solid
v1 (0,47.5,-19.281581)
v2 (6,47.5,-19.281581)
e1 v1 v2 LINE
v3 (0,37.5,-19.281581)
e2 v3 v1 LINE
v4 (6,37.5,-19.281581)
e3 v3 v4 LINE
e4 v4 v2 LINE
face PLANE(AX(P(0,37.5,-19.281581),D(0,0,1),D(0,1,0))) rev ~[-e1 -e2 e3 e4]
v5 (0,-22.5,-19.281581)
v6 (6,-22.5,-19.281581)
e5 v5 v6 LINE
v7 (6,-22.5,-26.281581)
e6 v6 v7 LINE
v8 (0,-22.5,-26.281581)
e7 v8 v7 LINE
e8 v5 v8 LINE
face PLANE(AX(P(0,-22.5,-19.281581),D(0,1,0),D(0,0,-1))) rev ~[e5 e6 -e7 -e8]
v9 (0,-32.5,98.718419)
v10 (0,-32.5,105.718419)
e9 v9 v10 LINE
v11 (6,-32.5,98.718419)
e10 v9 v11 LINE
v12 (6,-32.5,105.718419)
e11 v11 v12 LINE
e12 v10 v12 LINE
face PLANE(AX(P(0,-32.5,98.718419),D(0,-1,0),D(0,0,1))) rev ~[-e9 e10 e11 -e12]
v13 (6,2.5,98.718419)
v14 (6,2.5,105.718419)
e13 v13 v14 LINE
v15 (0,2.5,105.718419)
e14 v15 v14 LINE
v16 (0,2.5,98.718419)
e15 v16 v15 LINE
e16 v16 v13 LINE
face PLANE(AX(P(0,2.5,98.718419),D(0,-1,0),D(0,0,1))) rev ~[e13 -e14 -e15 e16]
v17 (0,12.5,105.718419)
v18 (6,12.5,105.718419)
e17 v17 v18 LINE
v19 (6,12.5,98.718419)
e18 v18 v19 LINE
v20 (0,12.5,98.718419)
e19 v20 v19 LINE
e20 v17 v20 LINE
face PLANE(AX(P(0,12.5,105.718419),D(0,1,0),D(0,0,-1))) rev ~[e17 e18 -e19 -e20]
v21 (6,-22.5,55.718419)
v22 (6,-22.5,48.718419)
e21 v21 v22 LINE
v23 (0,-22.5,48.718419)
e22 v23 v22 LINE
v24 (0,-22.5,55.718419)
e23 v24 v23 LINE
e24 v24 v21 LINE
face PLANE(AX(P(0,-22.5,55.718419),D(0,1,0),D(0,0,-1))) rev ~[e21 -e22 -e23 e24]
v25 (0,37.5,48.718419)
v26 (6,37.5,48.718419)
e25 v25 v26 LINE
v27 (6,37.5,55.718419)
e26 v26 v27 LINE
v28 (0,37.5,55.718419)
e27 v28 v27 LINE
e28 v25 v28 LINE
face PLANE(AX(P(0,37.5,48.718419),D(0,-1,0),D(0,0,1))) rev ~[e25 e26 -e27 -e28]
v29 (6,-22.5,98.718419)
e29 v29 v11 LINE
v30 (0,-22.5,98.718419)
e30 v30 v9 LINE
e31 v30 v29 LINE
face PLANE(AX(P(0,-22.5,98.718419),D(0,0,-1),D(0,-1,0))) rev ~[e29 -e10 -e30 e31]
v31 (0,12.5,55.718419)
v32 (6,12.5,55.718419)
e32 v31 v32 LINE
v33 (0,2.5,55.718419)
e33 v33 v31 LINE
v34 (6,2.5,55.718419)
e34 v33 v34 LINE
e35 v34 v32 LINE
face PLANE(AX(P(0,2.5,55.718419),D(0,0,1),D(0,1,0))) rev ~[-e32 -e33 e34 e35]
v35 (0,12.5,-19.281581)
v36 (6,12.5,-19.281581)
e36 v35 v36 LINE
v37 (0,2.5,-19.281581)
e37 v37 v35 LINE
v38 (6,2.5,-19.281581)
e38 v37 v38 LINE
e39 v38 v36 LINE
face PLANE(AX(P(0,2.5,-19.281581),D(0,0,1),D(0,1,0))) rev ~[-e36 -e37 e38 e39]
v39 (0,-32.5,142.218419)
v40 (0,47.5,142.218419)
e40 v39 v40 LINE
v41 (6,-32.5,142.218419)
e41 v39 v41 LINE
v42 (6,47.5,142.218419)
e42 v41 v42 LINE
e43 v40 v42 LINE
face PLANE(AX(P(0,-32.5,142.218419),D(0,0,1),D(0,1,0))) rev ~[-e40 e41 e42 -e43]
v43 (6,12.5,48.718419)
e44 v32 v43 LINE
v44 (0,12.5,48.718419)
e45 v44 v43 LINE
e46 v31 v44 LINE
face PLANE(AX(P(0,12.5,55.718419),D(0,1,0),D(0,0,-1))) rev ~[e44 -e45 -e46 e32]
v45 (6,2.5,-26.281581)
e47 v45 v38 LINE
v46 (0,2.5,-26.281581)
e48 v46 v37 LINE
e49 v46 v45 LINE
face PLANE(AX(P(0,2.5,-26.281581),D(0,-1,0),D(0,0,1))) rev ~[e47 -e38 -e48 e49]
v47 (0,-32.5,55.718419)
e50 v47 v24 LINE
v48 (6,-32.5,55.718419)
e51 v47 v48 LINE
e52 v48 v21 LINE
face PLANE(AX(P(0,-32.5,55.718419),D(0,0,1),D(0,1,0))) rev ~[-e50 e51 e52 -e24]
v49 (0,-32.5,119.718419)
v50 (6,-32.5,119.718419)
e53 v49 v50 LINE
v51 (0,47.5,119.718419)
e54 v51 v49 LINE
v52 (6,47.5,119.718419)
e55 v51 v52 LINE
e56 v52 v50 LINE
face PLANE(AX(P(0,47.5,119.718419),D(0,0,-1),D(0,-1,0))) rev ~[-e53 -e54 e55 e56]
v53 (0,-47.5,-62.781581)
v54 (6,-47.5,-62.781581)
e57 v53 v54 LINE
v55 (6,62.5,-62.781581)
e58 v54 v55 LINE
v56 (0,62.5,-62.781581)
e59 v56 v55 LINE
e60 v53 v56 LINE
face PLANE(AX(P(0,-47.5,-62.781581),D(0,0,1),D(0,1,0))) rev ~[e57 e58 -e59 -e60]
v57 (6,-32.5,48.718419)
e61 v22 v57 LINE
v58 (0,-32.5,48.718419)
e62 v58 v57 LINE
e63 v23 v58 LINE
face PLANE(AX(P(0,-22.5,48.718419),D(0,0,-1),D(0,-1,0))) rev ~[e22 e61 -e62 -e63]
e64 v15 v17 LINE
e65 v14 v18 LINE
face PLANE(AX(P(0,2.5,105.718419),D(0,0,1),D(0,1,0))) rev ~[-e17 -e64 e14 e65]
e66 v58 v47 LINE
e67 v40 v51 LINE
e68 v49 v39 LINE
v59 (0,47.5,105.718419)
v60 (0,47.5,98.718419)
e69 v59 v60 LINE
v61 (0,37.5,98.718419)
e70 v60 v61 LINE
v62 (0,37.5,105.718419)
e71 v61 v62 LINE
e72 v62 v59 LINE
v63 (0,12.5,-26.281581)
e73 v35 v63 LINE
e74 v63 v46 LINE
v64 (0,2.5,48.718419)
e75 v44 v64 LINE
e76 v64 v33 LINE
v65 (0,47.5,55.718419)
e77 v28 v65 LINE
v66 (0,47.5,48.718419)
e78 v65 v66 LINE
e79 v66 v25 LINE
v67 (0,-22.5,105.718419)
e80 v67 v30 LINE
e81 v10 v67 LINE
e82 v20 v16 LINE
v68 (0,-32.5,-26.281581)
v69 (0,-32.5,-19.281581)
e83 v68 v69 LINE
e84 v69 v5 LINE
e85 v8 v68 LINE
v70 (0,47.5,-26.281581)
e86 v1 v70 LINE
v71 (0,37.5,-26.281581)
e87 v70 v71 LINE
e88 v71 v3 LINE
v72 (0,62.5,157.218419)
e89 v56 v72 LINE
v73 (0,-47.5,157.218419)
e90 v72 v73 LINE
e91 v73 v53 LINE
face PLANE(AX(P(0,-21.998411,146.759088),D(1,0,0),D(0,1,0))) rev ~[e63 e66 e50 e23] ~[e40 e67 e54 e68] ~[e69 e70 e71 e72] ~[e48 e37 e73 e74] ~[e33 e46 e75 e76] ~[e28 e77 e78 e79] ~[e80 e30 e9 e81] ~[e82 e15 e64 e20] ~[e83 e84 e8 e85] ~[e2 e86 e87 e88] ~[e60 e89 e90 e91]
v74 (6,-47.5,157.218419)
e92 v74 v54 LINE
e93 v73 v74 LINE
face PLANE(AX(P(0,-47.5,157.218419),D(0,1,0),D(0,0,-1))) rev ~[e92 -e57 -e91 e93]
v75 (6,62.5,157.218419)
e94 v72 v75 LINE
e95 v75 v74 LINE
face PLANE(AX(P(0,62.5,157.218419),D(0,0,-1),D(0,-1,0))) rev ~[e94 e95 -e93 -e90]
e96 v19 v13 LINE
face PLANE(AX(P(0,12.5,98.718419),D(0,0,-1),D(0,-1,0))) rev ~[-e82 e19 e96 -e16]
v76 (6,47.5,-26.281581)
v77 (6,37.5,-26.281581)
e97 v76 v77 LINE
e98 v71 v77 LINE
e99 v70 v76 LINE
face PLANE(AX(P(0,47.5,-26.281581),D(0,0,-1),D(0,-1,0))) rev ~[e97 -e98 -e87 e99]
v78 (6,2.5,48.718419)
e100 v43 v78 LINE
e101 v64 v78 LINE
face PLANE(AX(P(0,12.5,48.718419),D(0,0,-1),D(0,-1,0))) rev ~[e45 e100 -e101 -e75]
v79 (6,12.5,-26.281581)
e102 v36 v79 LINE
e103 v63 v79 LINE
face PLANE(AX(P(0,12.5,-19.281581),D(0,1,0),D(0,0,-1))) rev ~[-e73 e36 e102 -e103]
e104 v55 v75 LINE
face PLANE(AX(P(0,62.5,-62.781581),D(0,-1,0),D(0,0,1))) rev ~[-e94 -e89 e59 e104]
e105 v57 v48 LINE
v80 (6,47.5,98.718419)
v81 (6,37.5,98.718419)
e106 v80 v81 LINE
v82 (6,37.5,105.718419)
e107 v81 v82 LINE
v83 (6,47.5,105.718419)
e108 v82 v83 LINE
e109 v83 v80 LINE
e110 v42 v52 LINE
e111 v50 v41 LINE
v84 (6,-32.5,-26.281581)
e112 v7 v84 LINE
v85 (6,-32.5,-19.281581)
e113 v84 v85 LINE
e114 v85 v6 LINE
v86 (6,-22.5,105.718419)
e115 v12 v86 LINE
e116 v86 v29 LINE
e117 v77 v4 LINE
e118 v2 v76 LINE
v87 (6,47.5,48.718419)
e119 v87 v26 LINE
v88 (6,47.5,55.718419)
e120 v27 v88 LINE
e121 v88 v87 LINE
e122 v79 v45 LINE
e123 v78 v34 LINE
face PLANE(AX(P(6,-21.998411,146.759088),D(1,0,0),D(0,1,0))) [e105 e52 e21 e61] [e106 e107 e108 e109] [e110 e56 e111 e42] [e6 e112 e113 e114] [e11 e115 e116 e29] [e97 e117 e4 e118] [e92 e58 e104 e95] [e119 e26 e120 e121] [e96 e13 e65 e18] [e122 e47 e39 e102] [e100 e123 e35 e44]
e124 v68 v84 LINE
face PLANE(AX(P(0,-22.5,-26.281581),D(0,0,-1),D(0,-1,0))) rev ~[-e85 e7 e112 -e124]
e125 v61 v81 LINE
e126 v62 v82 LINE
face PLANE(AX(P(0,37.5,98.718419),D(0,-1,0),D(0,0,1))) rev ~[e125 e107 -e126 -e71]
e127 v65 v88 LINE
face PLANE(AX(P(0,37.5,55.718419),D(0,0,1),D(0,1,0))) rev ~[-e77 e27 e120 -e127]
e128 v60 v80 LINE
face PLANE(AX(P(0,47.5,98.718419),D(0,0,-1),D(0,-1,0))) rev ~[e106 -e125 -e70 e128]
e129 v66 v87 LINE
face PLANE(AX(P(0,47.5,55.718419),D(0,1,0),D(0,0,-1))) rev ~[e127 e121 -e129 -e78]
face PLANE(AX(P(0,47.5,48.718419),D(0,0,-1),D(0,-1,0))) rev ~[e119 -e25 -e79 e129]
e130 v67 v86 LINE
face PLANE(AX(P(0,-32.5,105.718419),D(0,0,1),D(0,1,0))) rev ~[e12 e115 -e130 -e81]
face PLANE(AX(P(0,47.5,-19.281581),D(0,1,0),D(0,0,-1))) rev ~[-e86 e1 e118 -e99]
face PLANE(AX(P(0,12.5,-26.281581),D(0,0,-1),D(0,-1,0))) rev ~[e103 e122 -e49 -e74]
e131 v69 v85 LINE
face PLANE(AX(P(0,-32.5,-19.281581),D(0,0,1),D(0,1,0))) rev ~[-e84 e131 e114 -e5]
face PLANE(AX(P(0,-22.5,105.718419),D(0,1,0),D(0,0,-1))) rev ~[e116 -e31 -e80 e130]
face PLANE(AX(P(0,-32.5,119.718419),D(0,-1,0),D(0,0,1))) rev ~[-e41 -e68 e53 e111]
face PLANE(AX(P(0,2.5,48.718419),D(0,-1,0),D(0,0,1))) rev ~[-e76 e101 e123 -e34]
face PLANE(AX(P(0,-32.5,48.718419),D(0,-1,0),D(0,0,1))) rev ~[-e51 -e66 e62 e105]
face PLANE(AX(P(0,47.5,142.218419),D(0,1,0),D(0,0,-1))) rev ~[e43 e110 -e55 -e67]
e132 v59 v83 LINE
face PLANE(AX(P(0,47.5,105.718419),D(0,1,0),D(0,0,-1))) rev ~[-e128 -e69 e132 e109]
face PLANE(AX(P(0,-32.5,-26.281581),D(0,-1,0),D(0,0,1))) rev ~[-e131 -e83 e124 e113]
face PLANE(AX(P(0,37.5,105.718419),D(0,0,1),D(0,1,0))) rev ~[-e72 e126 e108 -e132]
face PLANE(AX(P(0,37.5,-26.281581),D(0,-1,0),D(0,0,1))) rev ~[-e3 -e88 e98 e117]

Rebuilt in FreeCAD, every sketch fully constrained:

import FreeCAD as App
import Part
import Sketcher
Q = App.Units.Quantity

doc = App.newDocument("Part")
body = doc.addObject("PartDesign::Body", "Body")

sketch1 = body.newObject("Sketcher::SketchObject", "Sketch")
sketch1.AttachmentSupport = (doc.getObject("YZ_Plane"), [""])
sketch1.MapMode = "FlatFace"
sketch1.addGeometry(Part.LineSegment(App.Vector(-48, 157, 0), App.Vector(-48, -63, 0)), False)
sketch1.addGeometry(Part.LineSegment(App.Vector(-48, -63, 0), App.Vector(62, -63, 0)), False)
sketch1.addGeometry(Part.LineSegment(App.Vector(62, -63, 0), App.Vector(62, 157, 0)), False)
sketch1.addGeometry(Part.LineSegment(App.Vector(62, 157, 0), App.Vector(-48, 157, 0)), False)
sketch1.addGeometry(Part.LineSegment(App.Vector(-32, -19, 0), App.Vector(-22, -19, 0)), False)
sketch1.addGeometry(Part.LineSegment(App.Vector(-22, -19, 0), App.Vector(-22, -26, 0)), False)
sketch1.addGeometry(Part.LineSegment(App.Vector(-22, -26, 0), App.Vector(-32, -26, 0)), False)
sketch1.addGeometry(Part.LineSegment(App.Vector(-32, -26, 0), App.Vector(-32, -19, 0)), False)
sketch1.addGeometry(Part.LineSegment(App.Vector(-32, 56, 0), App.Vector(-22, 56, 0)), False)
sketch1.addGeometry(Part.LineSegment(App.Vector(-22, 56, 0), App.Vector(-22, 49, 0)), False)
sketch1.addGeometry(Part.LineSegment(App.Vector(-22, 49, 0), App.Vector(-32, 49, 0)), False)
sketch1.addGeometry(Part.LineSegment(App.Vector(-32, 49, 0), App.Vector(-32, 56, 0)), False)
sketch1.addGeometry(Part.LineSegment(App.Vector(2, -19, 0), App.Vector(12, -19, 0)), False)
sketch1.addGeometry(Part.LineSegment(App.Vector(12, -19, 0), App.Vector(12, -26, 0)), False)
sketch1.addGeometry(Part.LineSegment(App.Vector(12, -26, 0), App.Vector(2, -26, 0)), False)
sketch1.addGeometry(Part.LineSegment(App.Vector(2, -26, 0), App.Vector(2, -19, 0)), False)
sketch1.addGeometry(Part.LineSegment(App.Vector(38, -26, 0), App.Vector(38, -19, 0)), False)
sketch1.addGeometry(Part.LineSegment(App.Vector(38, -19, 0), App.Vector(48, -19, 0)), False)
sketch1.addGeometry(Part.LineSegment(App.Vector(48, -19, 0), App.Vector(48, -26, 0)), False)
sketch1.addGeometry(Part.LineSegment(App.Vector(48, -26, 0), App.Vector(38, -26, 0)), False)
sketch1.addGeometry(Part.LineSegment(App.Vector(2, 56, 0), App.Vector(12, 56, 0)), False)
sketch1.addGeometry(Part.LineSegment(App.Vector(12, 56, 0), App.Vector(12, 49, 0)), False)
sketch1.addGeometry(Part.LineSegment(App.Vector(12, 49, 0), App.Vector(2, 49, 0)), False)
sketch1.addGeometry(Part.LineSegment(App.Vector(2, 49, 0), App.Vector(2, 56, 0)), False)
sketch1.addGeometry(Part.LineSegment(App.Vector(38, 49, 0), App.Vector(38, 56, 0)), False)
sketch1.addGeometry(Part.LineSegment(App.Vector(38, 56, 0), App.Vector(48, 56, 0)), False)
sketch1.addGeometry(Part.LineSegment(App.Vector(48, 56, 0), App.Vector(48, 49, 0)), False)
sketch1.addGeometry(Part.LineSegment(App.Vector(48, 49, 0), App.Vector(38, 49, 0)), False)
sketch1.addGeometry(Part.LineSegment(App.Vector(-22, 106, 0), App.Vector(-22, 99, 0)), False)
sketch1.addGeometry(Part.LineSegment(App.Vector(-22, 99, 0), App.Vector(-32, 99, 0)), False)
sketch1.addGeometry(Part.LineSegment(App.Vector(-32, 99, 0), App.Vector(-32, 106, 0)), False)
sketch1.addGeometry(Part.LineSegment(App.Vector(-32, 106, 0), App.Vector(-22, 106, 0)), False)
sketch1.addGeometry(Part.LineSegment(App.Vector(12, 99, 0), App.Vector(2, 99, 0)), False)
sketch1.addGeometry(Part.LineSegment(App.Vector(2, 99, 0), App.Vector(2, 106, 0)), False)
sketch1.addGeometry(Part.LineSegment(App.Vector(2, 106, 0), App.Vector(12, 106, 0)), False)
sketch1.addGeometry(Part.LineSegment(App.Vector(12, 106, 0), App.Vector(12, 99, 0)), False)
sketch1.addGeometry(Part.LineSegment(App.Vector(-32, 142, 0), App.Vector(48, 142, 0)), False)
sketch1.addGeometry(Part.LineSegment(App.Vector(48, 142, 0), App.Vector(48, 120, 0)), False)
sketch1.addGeometry(Part.LineSegment(App.Vector(48, 120, 0), App.Vector(-32, 120, 0)), False)
sketch1.addGeometry(Part.LineSegment(App.Vector(-32, 120, 0), App.Vector(-32, 142, 0)), False)
sketch1.addGeometry(Part.LineSegment(App.Vector(48, 99, 0), App.Vector(38, 99, 0)), False)
sketch1.addGeometry(Part.LineSegment(App.Vector(38, 99, 0), App.Vector(38, 106, 0)), False)
sketch1.addGeometry(Part.LineSegment(App.Vector(38, 106, 0), App.Vector(48, 106, 0)), False)
sketch1.addGeometry(Part.LineSegment(App.Vector(48, 106, 0), App.Vector(48, 99, 0)), False)
sketch1.addConstraint(Sketcher.Constraint("Coincident", 0, 2, 1, 1))
sketch1.addConstraint(Sketcher.Constraint("Coincident", 1, 2, 2, 1))
sketch1.addConstraint(Sketcher.Constraint("Coincident", 2, 2, 3, 1))
sketch1.addConstraint(Sketcher.Constraint("Coincident", 3, 2, 0, 1))
sketch1.addConstraint(Sketcher.Constraint("Coincident", 4, 2, 5, 1))
sketch1.addConstraint(Sketcher.Constraint("Coincident", 5, 2, 6, 1))
sketch1.addConstraint(Sketcher.Constraint("Coincident", 6, 2, 7, 1))
sketch1.addConstraint(Sketcher.Constraint("Coincident", 7, 2, 4, 1))
sketch1.addConstraint(Sketcher.Constraint("Coincident", 8, 2, 9, 1))
sketch1.addConstraint(Sketcher.Constraint("Coincident", 9, 2, 10, 1))
sketch1.addConstraint(Sketcher.Constraint("Coincident", 10, 2, 11, 1))
sketch1.addConstraint(Sketcher.Constraint("Coincident", 11, 2, 8, 1))
sketch1.addConstraint(Sketcher.Constraint("Coincident", 12, 2, 13, 1))
sketch1.addConstraint(Sketcher.Constraint("Coincident", 13, 2, 14, 1))
sketch1.addConstraint(Sketcher.Constraint("Coincident", 14, 2, 15, 1))
sketch1.addConstraint(Sketcher.Constraint("Coincident", 15, 2, 12, 1))
sketch1.addConstraint(Sketcher.Constraint("Coincident", 16, 2, 17, 1))
sketch1.addConstraint(Sketcher.Constraint("Coincident", 17, 2, 18, 1))
sketch1.addConstraint(Sketcher.Constraint("Coincident", 18, 2, 19, 1))
sketch1.addConstraint(Sketcher.Constraint("Coincident", 19, 2, 16, 1))
sketch1.addConstraint(Sketcher.Constraint("Coincident", 20, 2, 21, 1))
sketch1.addConstraint(Sketcher.Constraint("Coincident", 21, 2, 22, 1))
sketch1.addConstraint(Sketcher.Constraint("Coincident", 22, 2, 23, 1))
sketch1.addConstraint(Sketcher.Constraint("Coincident", 23, 2, 20, 1))
sketch1.addConstraint(Sketcher.Constraint("Coincident", 24, 2, 25, 1))
sketch1.addConstraint(Sketcher.Constraint("Coincident", 25, 2, 26, 1))
sketch1.addConstraint(Sketcher.Constraint("Coincident", 26, 2, 27, 1))
sketch1.addConstraint(Sketcher.Constraint("Coincident", 27, 2, 24, 1))
sketch1.addConstraint(Sketcher.Constraint("Coincident", 28, 2, 29, 1))
sketch1.addConstraint(Sketcher.Constraint("Coincident", 29, 2, 30, 1))
sketch1.addConstraint(Sketcher.Constraint("Coincident", 30, 2, 31, 1))
sketch1.addConstraint(Sketcher.Constraint("Coincident", 31, 2, 28, 1))
sketch1.addConstraint(Sketcher.Constraint("Coincident", 32, 2, 33, 1))
sketch1.addConstraint(Sketcher.Constraint("Coincident", 33, 2, 34, 1))
sketch1.addConstraint(Sketcher.Constraint("Coincident", 34, 2, 35, 1))
sketch1.addConstraint(Sketcher.Constraint("Coincident", 35, 2, 32, 1))
sketch1.addConstraint(Sketcher.Constraint("Coincident", 36, 2, 37, 1))
sketch1.addConstraint(Sketcher.Constraint("Coincident", 37, 2, 38, 1))
sketch1.addConstraint(Sketcher.Constraint("Coincident", 38, 2, 39, 1))
sketch1.addConstraint(Sketcher.Constraint("Coincident", 39, 2, 36, 1))
sketch1.addConstraint(Sketcher.Constraint("Coincident", 40, 2, 41, 1))
sketch1.addConstraint(Sketcher.Constraint("Coincident", 41, 2, 42, 1))
sketch1.addConstraint(Sketcher.Constraint("Coincident", 42, 2, 43, 1))
sketch1.addConstraint(Sketcher.Constraint("Coincident", 43, 2, 40, 1))
sketch1.addConstraint(Sketcher.Constraint("Vertical", 0))
sketch1.addConstraint(Sketcher.Constraint("Horizontal", 1))
sketch1.addConstraint(Sketcher.Constraint("Vertical", 2))
sketch1.addConstraint(Sketcher.Constraint("Horizontal", 3))
sketch1.addConstraint(Sketcher.Constraint("Horizontal", 4))
sketch1.addConstraint(Sketcher.Constraint("Vertical", 5))
sketch1.addConstraint(Sketcher.Constraint("Horizontal", 6))
sketch1.addConstraint(Sketcher.Constraint("Vertical", 7))
sketch1.addConstraint(Sketcher.Constraint("Horizontal", 8))
sketch1.addConstraint(Sketcher.Constraint("Vertical", 9))
sketch1.addConstraint(Sketcher.Constraint("Horizontal", 10))
sketch1.addConstraint(Sketcher.Constraint("Vertical", 11))
sketch1.addConstraint(Sketcher.Constraint("Horizontal", 12))
sketch1.addConstraint(Sketcher.Constraint("Vertical", 13))
sketch1.addConstraint(Sketcher.Constraint("Horizontal", 14))
sketch1.addConstraint(Sketcher.Constraint("Vertical", 15))
sketch1.addConstraint(Sketcher.Constraint("Vertical", 16))
sketch1.addConstraint(Sketcher.Constraint("Horizontal", 17))
sketch1.addConstraint(Sketcher.Constraint("Vertical", 18))
sketch1.addConstraint(Sketcher.Constraint("Horizontal", 19))
sketch1.addConstraint(Sketcher.Constraint("Horizontal", 20))
sketch1.addConstraint(Sketcher.Constraint("Vertical", 21))
sketch1.addConstraint(Sketcher.Constraint("Horizontal", 22))
sketch1.addConstraint(Sketcher.Constraint("Vertical", 23))
sketch1.addConstraint(Sketcher.Constraint("Vertical", 24))
sketch1.addConstraint(Sketcher.Constraint("Horizontal", 25))
sketch1.addConstraint(Sketcher.Constraint("Vertical", 26))
sketch1.addConstraint(Sketcher.Constraint("Horizontal", 27))
sketch1.addConstraint(Sketcher.Constraint("Vertical", 28))
sketch1.addConstraint(Sketcher.Constraint("Horizontal", 29))
sketch1.addConstraint(Sketcher.Constraint("Vertical", 30))
sketch1.addConstraint(Sketcher.Constraint("Horizontal", 31))
sketch1.addConstraint(Sketcher.Constraint("Horizontal", 32))
sketch1.addConstraint(Sketcher.Constraint("Vertical", 33))
sketch1.addConstraint(Sketcher.Constraint("Horizontal", 34))
sketch1.addConstraint(Sketcher.Constraint("Vertical", 35))
sketch1.addConstraint(Sketcher.Constraint("Horizontal", 36))
sketch1.addConstraint(Sketcher.Constraint("Vertical", 37))
sketch1.addConstraint(Sketcher.Constraint("Horizontal", 38))
sketch1.addConstraint(Sketcher.Constraint("Vertical", 39))
sketch1.addConstraint(Sketcher.Constraint("Horizontal", 40))
sketch1.addConstraint(Sketcher.Constraint("Vertical", 41))
sketch1.addConstraint(Sketcher.Constraint("Horizontal", 42))
sketch1.addConstraint(Sketcher.Constraint("Vertical", 43))
sketch1.addConstraint(Sketcher.Constraint("Horizontal", 7, 2, 12, 2))
sketch1.addConstraint(Sketcher.Constraint("Horizontal", 6, 2, 13, 2))
sketch1.addConstraint(Sketcher.Constraint("Horizontal", 15, 2, 16, 2))
sketch1.addConstraint(Sketcher.Constraint("Horizontal", 14, 2, 18, 2))
sketch1.addConstraint(Sketcher.Constraint("Horizontal", 11, 2, 20, 2))
sketch1.addConstraint(Sketcher.Constraint("Horizontal", 10, 2, 21, 2))
sketch1.addConstraint(Sketcher.Constraint("Horizontal", 23, 2, 24, 2))
sketch1.addConstraint(Sketcher.Constraint("Horizontal", 22, 2, 26, 2))
sketch1.addConstraint(Sketcher.Constraint("Horizontal", 29, 2, 32, 2))
sketch1.addConstraint(Sketcher.Constraint("Horizontal", 31, 2, 33, 2))
sketch1.addConstraint(Sketcher.Constraint("Horizontal", 35, 2, 40, 2))
sketch1.addConstraint(Sketcher.Constraint("Horizontal", 34, 2, 41, 2))
sketch1.addConstraint(Sketcher.Constraint("Vertical", 5, 2, 8, 2))
sketch1.addConstraint(Sketcher.Constraint("Vertical", 7, 2, 10, 2))
sketch1.addConstraint(Sketcher.Constraint("Vertical", 13, 2, 20, 2))
sketch1.addConstraint(Sketcher.Constraint("Vertical", 15, 2, 22, 2))
sketch1.addConstraint(Sketcher.Constraint("Vertical", 19, 2, 24, 2))
sketch1.addConstraint(Sketcher.Constraint("Vertical", 18, 2, 25, 2))
sketch1.addConstraint(Sketcher.Constraint("Vertical", 9, 2, 28, 2))
sketch1.addConstraint(Sketcher.Constraint("Vertical", 11, 2, 29, 2))
sketch1.addConstraint(Sketcher.Constraint("Vertical", 23, 2, 32, 2))
sketch1.addConstraint(Sketcher.Constraint("Vertical", 21, 2, 34, 2))
sketch1.addConstraint(Sketcher.Constraint("Vertical", 26, 2, 36, 2))
sketch1.addConstraint(Sketcher.Constraint("Vertical", 30, 2, 38, 2))
sketch1.addConstraint(Sketcher.Constraint("Vertical", 27, 2, 40, 2))
sketch1.addConstraint(Sketcher.Constraint("Vertical", 37, 2, 42, 2))
sketch1.addConstraint(Sketcher.Constraint("Equal", 10, 12))
sketch1.addConstraint(Sketcher.Constraint("Equal", 14, 17))
sketch1.addConstraint(Sketcher.Constraint("Equal", 7, 9))
sketch1.addConstraint(Sketcher.Constraint("Equal", 26, 28))
sketch1.addConstraint(Sketcher.Constraint("DistanceX", 1, 1, 1, 2, Q("110 mm")))
sketch1.addConstraint(Sketcher.Constraint("DistanceX", 4, 1, 4, 2, Q("10 mm")))
sketch1.addConstraint(Sketcher.Constraint("DistanceX", 36, 1, 36, 2, Q("80 mm")))
sketch1.addConstraint(Sketcher.Constraint("DistanceY", 0, 2, 0, 1, Q("220 mm")))
sketch1.addConstraint(Sketcher.Constraint("DistanceY", 5, 2, 5, 1, Q("7 mm")))
sketch1.addConstraint(Sketcher.Constraint("DistanceY", 37, 2, 37, 1, Q("22.5 mm")))
sketch1.addConstraint(Sketcher.Constraint("DistanceX", 0, 2, 4, 2, Q("25 mm")))
sketch1.addConstraint(Sketcher.Constraint("DistanceY", 4, 2, 8, 2, Q("75 mm")))
sketch1.addConstraint(Sketcher.Constraint("DistanceX", 4, 2, 12, 2, Q("35 mm")))
sketch1.addConstraint(Sketcher.Constraint("DistanceY", 8, 2, 28, 2, Q("43 mm")))
sketch1.addConstraint(Sketcher.Constraint("DistanceY", 36, 2, 2, 2, Q("15 mm")))
sketch1.addConstraint(Sketcher.Constraint("DistanceY", 34, 2, 37, 2, Q("14 mm")))
sketch1.addConstraint(Sketcher.Constraint("DistanceX", 0, 2, -1, 1, Q("47.5 mm")))
sketch1.addConstraint(Sketcher.Constraint("DistanceY", 0, 2, -1, 1, Q("62.781581 mm")))
pad1 = body.newObject("PartDesign::Pad", "Pad")
pad1.Profile = sketch1
pad1.Length = 6

doc.recompute()
